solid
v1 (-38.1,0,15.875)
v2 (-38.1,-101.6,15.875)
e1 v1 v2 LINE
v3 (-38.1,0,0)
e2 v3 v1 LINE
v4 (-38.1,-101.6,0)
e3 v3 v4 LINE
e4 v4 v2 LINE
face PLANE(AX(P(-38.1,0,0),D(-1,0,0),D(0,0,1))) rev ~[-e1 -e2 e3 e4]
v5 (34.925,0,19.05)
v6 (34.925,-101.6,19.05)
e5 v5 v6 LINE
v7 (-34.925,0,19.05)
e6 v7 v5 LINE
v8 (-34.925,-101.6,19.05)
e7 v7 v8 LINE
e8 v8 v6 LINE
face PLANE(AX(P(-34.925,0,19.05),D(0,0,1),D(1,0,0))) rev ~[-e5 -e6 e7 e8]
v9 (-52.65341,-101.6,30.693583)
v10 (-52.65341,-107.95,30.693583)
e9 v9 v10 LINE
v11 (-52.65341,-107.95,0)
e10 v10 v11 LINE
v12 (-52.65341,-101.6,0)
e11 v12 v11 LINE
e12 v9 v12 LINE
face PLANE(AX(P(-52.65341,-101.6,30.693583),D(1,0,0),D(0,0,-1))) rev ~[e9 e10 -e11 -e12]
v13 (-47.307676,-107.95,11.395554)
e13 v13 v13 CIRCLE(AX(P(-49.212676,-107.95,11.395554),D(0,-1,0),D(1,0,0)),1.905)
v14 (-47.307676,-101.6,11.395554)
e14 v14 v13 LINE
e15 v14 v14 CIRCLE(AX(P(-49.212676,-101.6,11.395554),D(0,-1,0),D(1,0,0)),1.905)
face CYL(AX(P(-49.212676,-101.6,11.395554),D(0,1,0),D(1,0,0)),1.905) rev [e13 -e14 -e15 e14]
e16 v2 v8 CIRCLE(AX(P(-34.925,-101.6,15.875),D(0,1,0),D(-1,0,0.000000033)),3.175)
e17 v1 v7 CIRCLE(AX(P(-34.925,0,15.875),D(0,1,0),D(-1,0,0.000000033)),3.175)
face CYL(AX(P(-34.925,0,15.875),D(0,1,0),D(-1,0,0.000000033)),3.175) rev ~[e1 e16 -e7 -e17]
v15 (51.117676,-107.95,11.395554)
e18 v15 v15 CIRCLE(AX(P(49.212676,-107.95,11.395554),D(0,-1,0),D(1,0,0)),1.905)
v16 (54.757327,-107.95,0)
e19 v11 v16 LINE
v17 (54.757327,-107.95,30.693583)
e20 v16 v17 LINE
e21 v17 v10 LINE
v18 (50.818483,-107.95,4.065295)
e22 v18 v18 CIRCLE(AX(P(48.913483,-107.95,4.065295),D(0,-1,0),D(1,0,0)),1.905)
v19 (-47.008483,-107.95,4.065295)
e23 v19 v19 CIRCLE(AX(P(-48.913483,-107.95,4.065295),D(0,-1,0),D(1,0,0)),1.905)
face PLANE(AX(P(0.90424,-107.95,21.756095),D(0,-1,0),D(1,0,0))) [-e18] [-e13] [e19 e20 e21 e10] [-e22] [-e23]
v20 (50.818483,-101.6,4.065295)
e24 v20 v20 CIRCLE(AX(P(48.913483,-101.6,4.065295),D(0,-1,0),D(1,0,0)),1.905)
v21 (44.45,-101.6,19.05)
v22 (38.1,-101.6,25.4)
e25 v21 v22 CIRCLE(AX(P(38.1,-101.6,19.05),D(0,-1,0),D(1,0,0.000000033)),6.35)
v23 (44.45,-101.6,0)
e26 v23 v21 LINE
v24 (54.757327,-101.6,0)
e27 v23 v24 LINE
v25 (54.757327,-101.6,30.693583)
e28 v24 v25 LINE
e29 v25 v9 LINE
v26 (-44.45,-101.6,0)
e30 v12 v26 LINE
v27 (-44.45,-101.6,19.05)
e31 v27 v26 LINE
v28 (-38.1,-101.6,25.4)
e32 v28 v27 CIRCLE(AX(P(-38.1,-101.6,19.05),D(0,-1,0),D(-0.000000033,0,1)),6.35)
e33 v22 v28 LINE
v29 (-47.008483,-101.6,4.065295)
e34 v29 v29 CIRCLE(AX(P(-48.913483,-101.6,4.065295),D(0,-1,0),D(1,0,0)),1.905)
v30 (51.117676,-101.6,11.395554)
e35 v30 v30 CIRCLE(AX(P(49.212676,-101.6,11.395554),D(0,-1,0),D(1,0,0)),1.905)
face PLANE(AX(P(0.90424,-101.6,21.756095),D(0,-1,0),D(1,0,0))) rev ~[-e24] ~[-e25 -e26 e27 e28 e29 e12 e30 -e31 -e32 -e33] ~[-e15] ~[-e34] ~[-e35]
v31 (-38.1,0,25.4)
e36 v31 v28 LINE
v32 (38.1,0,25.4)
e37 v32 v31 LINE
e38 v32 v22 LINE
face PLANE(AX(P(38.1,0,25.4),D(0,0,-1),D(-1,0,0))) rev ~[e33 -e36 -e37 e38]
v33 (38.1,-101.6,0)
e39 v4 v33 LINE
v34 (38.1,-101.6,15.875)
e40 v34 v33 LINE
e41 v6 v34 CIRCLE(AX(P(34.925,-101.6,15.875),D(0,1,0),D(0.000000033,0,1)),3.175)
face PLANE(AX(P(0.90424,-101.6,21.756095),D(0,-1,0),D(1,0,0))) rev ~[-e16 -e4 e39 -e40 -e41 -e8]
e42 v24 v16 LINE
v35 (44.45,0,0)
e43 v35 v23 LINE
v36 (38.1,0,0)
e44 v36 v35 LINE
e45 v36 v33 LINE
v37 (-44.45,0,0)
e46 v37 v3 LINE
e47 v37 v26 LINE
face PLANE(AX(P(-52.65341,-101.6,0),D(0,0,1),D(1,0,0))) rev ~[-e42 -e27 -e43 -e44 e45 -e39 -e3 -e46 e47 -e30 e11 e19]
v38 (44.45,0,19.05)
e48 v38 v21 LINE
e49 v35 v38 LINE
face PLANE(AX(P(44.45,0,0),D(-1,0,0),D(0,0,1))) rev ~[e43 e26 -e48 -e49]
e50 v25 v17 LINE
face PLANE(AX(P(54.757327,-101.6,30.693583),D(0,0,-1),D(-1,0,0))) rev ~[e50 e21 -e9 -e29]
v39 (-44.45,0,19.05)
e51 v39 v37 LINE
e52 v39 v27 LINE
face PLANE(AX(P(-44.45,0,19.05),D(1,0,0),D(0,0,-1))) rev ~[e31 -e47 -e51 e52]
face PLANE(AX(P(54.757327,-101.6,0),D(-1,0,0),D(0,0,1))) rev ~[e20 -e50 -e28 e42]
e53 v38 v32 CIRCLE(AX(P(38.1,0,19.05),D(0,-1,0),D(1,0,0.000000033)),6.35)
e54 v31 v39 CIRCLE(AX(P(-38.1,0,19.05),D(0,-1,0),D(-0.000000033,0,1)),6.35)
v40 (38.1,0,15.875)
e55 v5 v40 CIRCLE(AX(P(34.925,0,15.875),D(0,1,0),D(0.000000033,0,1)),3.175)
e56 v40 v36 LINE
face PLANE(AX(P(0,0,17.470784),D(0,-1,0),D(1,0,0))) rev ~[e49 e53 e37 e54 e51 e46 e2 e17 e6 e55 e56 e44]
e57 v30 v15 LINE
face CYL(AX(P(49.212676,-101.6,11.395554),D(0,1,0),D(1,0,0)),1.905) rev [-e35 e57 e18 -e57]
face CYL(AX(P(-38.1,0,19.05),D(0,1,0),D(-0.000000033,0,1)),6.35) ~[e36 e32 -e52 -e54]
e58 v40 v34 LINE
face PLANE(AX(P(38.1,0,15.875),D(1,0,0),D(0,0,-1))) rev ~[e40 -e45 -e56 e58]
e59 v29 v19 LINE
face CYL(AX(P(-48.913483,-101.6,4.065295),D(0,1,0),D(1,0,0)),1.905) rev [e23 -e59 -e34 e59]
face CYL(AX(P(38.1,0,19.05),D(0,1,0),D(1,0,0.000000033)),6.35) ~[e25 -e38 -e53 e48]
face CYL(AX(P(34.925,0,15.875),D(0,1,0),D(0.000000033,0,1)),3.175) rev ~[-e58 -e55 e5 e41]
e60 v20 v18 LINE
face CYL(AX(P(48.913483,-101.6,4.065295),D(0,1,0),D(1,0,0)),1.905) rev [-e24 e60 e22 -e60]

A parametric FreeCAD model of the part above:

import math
import FreeCAD as App
import Part
import Sketcher

V = App.Vector
Q = App.Units.Quantity


def add_polygon(sketch, points):
    """Adds a closed chain of lines whose ends are joined by coincident constraints."""
    first, n = sketch.GeometryCount, len(points)
    for a, b in zip(points, points[1:] + points[:1]):
        sketch.addGeometry(Part.LineSegment(App.Vector(*a, 0), App.Vector(*b, 0)), False)
    for i in range(n):
        sketch.addConstraint(Sketcher.Constraint("Coincident", first + i, 2, first + (i + 1) % n, 1))

doc = App.newDocument("Part")
params = doc.addObject("Spreadsheet::Sheet", "Params")
for row, (alias, value) in enumerate([
    ("sketch1_width", "3 in"),
    ("sketch1_radius", "0.25 in"),
    ("sketch1_radius2", "0.125 in"),
    ("pad1_length", "4 in"),
    ("sketch2_diameter", "0.15 in"),
    ("pad2_length", "0.25 in"),
], start=1):
    params.set(f"A{row}", alias)
    params.set(f"B{row}", "=" + value)
    params.setAlias(f"B{row}", alias)

body = doc.addObject("PartDesign::Body", "Body")

# Sketch on XZ plane
sketch1 = doc.addObject("Sketcher::SketchObject", "Sketch")
body.addObject(sketch1)
sketch1.AttachmentSupport = (doc.XZ_Plane, [""])
sketch1.MapMode = "FlatFace"
sketch1.addGeometry(Part.LineSegment(V(-34.9, 19.1, 0), V(34.9, 19.1, 0)), False)
sketch1.addGeometry(Part.ArcOfCircle(Part.Circle(V(34.9, 15.9, 0), V(0, 0, 1), 3.2), math.radians(0), math.radians(90)), False)
sketch1.addGeometry(Part.LineSegment(V(38.1, 15.9, 0), V(38.1, 0, 0)), False)
sketch1.addGeometry(Part.LineSegment(V(38.1, 0, 0), V(44.5, 0, 0)), False)
sketch1.addGeometry(Part.LineSegment(V(44.5, 0, 0), V(44.5, 19.1, 0)), False)
sketch1.addGeometry(Part.ArcOfCircle(Part.Circle(V(38.1, 19, 0), V(0, 0, 1), 6.4), math.radians(0), math.radians(90)), False)
sketch1.addGeometry(Part.LineSegment(V(38.1, 25.4, 0), V(-38.1, 25.4, 0)), False)
sketch1.addGeometry(Part.ArcOfCircle(Part.Circle(V(-38.1, 19, 0), V(0, 0, 1), 6.4), math.radians(90), math.radians(180)), False)
sketch1.addGeometry(Part.LineSegment(V(-44.5, 19.1, 0), V(-44.5, 0, 0)), False)
sketch1.addGeometry(Part.LineSegment(V(-44.5, 0, 0), V(-38.1, 0, 0)), False)
sketch1.addGeometry(Part.LineSegment(V(-38.1, 0, 0), V(-38.1, 15.9, 0)), False)
sketch1.addGeometry(Part.ArcOfCircle(Part.Circle(V(-34.9, 15.9, 0), V(0, 0, 1), 3.2), math.radians(90), math.radians(180)), False)
sketch1.addConstraint(Sketcher.Constraint("Tangent", 0, 2, 1, 2))
sketch1.addConstraint(Sketcher.Constraint("Tangent", 1, 1, 2, 1))
sketch1.addConstraint(Sketcher.Constraint("Coincident", 2, 2, 3, 1))
sketch1.addConstraint(Sketcher.Constraint("Coincident", 3, 2, 4, 1))
sketch1.addConstraint(Sketcher.Constraint("Tangent", 4, 2, 5, 1))
sketch1.addConstraint(Sketcher.Constraint("Tangent", 5, 2, 6, 1))
sketch1.addConstraint(Sketcher.Constraint("Tangent", 6, 2, 7, 1))
sketch1.addConstraint(Sketcher.Constraint("Tangent", 7, 2, 8, 1))
sketch1.addConstraint(Sketcher.Constraint("Coincident", 8, 2, 9, 1))
sketch1.addConstraint(Sketcher.Constraint("Coincident", 9, 2, 10, 1))
sketch1.addConstraint(Sketcher.Constraint("Tangent", 10, 2, 11, 2))
sketch1.addConstraint(Sketcher.Constraint("Tangent", 11, 1, 0, 1))
sketch1.addConstraint(Sketcher.Constraint("Horizontal", 0))
sketch1.addConstraint(Sketcher.Constraint("Vertical", 2))
sketch1.addConstraint(Sketcher.Constraint("Horizontal", 3))
sketch1.addConstraint(Sketcher.Constraint("Vertical", 4))
sketch1.addConstraint(Sketcher.Constraint("Horizontal", 6))
sketch1.addConstraint(Sketcher.Constraint("Vertical", 8))
sketch1.addConstraint(Sketcher.Constraint("Horizontal", 9))
sketch1.addConstraint(Sketcher.Constraint("Vertical", 10))
sketch1.addConstraint(Sketcher.Constraint("Equal", 5, 7))
sketch1.addConstraint(Sketcher.Constraint("Equal", 1, 11))
sketch1.addConstraint(Sketcher.Constraint("Symmetric", 3, 2, 8, 2, -1, 1))
sketch1.addConstraint(Sketcher.Constraint("Symmetric", 2, 2, 9, 2, -2))
sketch1.addConstraint(Sketcher.Constraint("Horizontal", 7, 3, 0, 2))
sketch1.addConstraint(Sketcher.Constraint("Vertical", 5, 3, 1, 1))
sketch1.addConstraint(Sketcher.Constraint("DistanceX", 6, 2, 6, 1, Q("3 in")))
sketch1.addConstraint(Sketcher.Constraint("Radius", 5, Q("0.25 in")))
sketch1.addConstraint(Sketcher.Constraint("DistanceY", -1, 1, 5, 2, Q("1 in")))
sketch1.addConstraint(Sketcher.Constraint("Radius", 1, Q("0.125 in")))
sketch1.setExpression("Constraints[26]", "Params.sketch1_width")
sketch1.setExpression("Constraints[27]", "Params.sketch1_radius")
sketch1.setExpression("Constraints[29]", "Params.sketch1_radius2")
pad1 = doc.addObject("PartDesign::Pad", "Pad")
body.addObject(pad1)
pad1.Profile = sketch1
pad1.setExpression("Length", "Params.pad1_length")

# Sketch on XZ plane
sketch2 = doc.addObject("Sketcher::SketchObject", "Sketch001")
body.addObject(sketch2)
sketch2.AttachmentSupport = (doc.XZ_Plane, [""])
sketch2.MapMode = "FlatFace"
sketch2.AttachmentOffset = App.Placement(V(0, 0, 4 * 25.4), App.Rotation())
add_polygon(sketch2, [(-52.7, 0), (54.8, 0), (54.8, 30.7), (-52.7, 30.7)])  # lines 0-3
sketch2.addGeometry(Part.Circle(V(-48.9, 4.1, 0), V(0, 0, 1), 1.9), False)  # 4
sketch2.addGeometry(Part.Circle(V(48.9, 4.1, 0), V(0, 0, 1), 1.9), False)  # 5
sketch2.addGeometry(Part.Circle(V(-49.2, 11.4, 0), V(0, 0, 1), 1.9), False)  # 6
sketch2.addGeometry(Part.Circle(V(49.2, 11.4, 0), V(0, 0, 1), 1.9), False)  # 7
sketch2.addConstraint(Sketcher.Constraint("Horizontal", 0))
sketch2.addConstraint(Sketcher.Constraint("Vertical", 1))
sketch2.addConstraint(Sketcher.Constraint("Horizontal", 2))
sketch2.addConstraint(Sketcher.Constraint("Vertical", 3))
sketch2.addConstraint(Sketcher.Constraint("Equal", 4, 5))
sketch2.addConstraint(Sketcher.Constraint("Equal", 5, 6))
sketch2.addConstraint(Sketcher.Constraint("Equal", 6, 7))
sketch2.addConstraint(Sketcher.Constraint("Symmetric", 4, 3, 5, 3, -2))
sketch2.addConstraint(Sketcher.Constraint("Symmetric", 6, 3, 7, 3, -2))
sketch2.addConstraint(Sketcher.Constraint("PointOnObject", 0, 2, -1))
sketch2.addConstraint(Sketcher.Constraint("Diameter", 4, Q("0.15 in")))
sketch2.addConstraint(Sketcher.Constraint("DistanceX", 0, 1, 0, 2, 107.410737))
sketch2.addConstraint(Sketcher.Constraint("DistanceY", 1, 1, 1, 2, 30.693583))
sketch2.addConstraint(Sketcher.Constraint("DistanceX", 2, 2, -1, 1, 52.65341))
sketch2.addConstraint(Sketcher.Constraint("DistanceY", 4, 3, 6, 3, 7.330259))
sketch2.addConstraint(Sketcher.Constraint("DistanceX", 6, 3, 5, 3, 98.126159))
sketch2.addConstraint(Sketcher.Constraint("DistanceX", 7, 3, 0, 2, 5.544651))
sketch2.addConstraint(Sketcher.Constraint("DistanceY", 7, 3, 1, 2, 19.298029))
sketch2.setExpression("Constraints[14]", "Params.sketch2_diameter")
pad2 = doc.addObject("PartDesign::Pad", "Pad001")
body.addObject(pad2)
pad2.Profile = sketch2
pad2.setExpression("Length", "Params.pad2_length")

doc.recompute()
